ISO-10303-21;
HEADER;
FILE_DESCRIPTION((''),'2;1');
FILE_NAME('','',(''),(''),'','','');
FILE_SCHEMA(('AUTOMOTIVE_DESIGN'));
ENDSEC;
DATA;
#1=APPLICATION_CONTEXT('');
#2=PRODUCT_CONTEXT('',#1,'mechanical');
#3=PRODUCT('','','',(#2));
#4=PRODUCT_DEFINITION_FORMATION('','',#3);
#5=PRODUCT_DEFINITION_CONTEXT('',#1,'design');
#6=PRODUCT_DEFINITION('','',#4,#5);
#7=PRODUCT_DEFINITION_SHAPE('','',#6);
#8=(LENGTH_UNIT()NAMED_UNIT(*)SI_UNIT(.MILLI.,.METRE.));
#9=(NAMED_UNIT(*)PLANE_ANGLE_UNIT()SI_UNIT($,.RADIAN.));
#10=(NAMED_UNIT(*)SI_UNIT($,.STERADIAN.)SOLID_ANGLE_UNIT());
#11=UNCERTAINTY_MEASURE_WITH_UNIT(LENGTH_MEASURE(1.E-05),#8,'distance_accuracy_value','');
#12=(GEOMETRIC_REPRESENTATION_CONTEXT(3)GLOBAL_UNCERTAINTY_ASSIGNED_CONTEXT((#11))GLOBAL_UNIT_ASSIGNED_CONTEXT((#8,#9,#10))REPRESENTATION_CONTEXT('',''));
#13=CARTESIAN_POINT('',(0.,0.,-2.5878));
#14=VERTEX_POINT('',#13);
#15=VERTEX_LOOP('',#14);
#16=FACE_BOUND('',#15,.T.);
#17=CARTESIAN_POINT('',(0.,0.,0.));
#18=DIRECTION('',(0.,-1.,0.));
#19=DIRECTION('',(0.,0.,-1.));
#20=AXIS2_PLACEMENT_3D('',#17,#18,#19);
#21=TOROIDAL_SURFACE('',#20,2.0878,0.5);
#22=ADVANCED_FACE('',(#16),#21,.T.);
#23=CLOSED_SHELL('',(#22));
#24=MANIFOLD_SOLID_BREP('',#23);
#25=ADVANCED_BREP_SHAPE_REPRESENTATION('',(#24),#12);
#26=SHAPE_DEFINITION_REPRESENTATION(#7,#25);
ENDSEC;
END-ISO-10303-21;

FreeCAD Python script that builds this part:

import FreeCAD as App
import Part
import Sketcher
from FreeCAD import Vector
Q = App.Units.Quantity

doc = App.newDocument("Part")
params = doc.addObject("Spreadsheet::Sheet", "Params")
for row, (alias, value) in enumerate([
    ("sketch1_diameter", "1 mm"),
    ("revolution_angle", "360 deg"),
], start=1):
    params.set(f"A{row}", alias)
    params.set(f"B{row}", "=" + value)
    params.setAlias(f"B{row}", alias)

body = doc.addObject("PartDesign::Body", "Body")

sketch1 = body.newObject("Sketcher::SketchObject", "Sketch")
sketch1.AttachmentSupport = (doc.getObject("YZ_Plane"), [""])
sketch1.MapMode = "FlatFace"
sketch1.addGeometry(Part.Circle(Vector(0, -2.1, 0), Vector(0, 0, 1), 0.5), False)
sketch1.addConstraint(Sketcher.Constraint("PointOnObject", 0, 3, -2))
sketch1.addConstraint(Sketcher.Constraint("Diameter", 0, Q("1 mm")))
sketch1.addConstraint(Sketcher.Constraint("DistanceY", 0, 3, -1, 1, Q("2.0878 mm")))
sketch1.setExpression("Constraints[1]", "Params.sketch1_diameter")
revolution = body.newObject("PartDesign::Revolution", "Revolution")
revolution.Profile = sketch1
revolution.ReferenceAxis = (sketch1, ["H_Axis"])
revolution.setExpression("Angle", "Params.revolution_angle")

doc.recompute()
